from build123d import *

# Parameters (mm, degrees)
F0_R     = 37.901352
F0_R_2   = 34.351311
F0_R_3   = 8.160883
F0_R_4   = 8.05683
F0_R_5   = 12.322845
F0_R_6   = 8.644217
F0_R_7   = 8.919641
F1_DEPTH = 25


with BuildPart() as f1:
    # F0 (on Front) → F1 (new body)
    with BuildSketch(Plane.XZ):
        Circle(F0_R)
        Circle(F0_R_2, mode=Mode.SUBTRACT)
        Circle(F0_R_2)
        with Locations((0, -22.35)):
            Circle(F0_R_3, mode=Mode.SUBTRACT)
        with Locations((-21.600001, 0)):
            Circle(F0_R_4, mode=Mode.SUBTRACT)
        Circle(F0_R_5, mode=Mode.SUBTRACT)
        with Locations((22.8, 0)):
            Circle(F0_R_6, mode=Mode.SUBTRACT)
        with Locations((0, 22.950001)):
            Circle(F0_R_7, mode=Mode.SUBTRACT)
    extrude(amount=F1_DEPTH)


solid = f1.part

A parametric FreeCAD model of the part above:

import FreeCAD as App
import Part
import Sketcher
Q = App.Units.Quantity

doc = App.newDocument("Part")
body = doc.addObject("PartDesign::Body", "Body")

# Sketch on XZ plane
sketch1 = body.newObject("Sketcher::SketchObject", "Sketch")
sketch1.AttachmentSupport = (doc.getObject("XZ_Plane"), [""])
sketch1.MapMode = "FlatFace"
sketch1.addGeometry(Part.Circle(App.Vector(0, 0, 0), App.Vector(0, 0, 1), 37.901352), False)
sketch1.addGeometry(Part.Circle(App.Vector(0, -22.35, 0), App.Vector(0, 0, 1), 8.160883), False)
sketch1.addGeometry(Part.Circle(App.Vector(-21.600001, 0, 0), App.Vector(0, 0, 1), 8.05683), False)
sketch1.addGeometry(Part.Circle(App.Vector(0, 0, 0), App.Vector(0, 0, 1), 12.322845), False)
sketch1.addGeometry(Part.Circle(App.Vector(22.8, 0, 0), App.Vector(0, 0, 1), 8.644217), False)
sketch1.addGeometry(Part.Circle(App.Vector(0, 22.950001, 0), App.Vector(0, 0, 1), 8.919641), False)
sketch1.addConstraint(Sketcher.Constraint("Coincident", 0, 3, -1, 1))
sketch1.addConstraint(Sketcher.Constraint("Coincident", 3, 3, -1, 1))
sketch1.addConstraint(Sketcher.Constraint("PointOnObject", 1, 3, -2))
sketch1.addConstraint(Sketcher.Constraint("PointOnObject", 2, 3, -1))
sketch1.addConstraint(Sketcher.Constraint("PointOnObject", 4, 3, -1))
sketch1.addConstraint(Sketcher.Constraint("PointOnObject", 5, 3, -2))
sketch1.addConstraint(Sketcher.Constraint("DistanceX", 2, 3, -1, 1, Q("21.600001 mm")))
sketch1.addConstraint(Sketcher.Constraint("DistanceX", -1, 1, 4, 3, Q("22.8 mm")))
sketch1.addConstraint(Sketcher.Constraint("DistanceY", 1, 3, 5, 3, Q("45.300001 mm")))
sketch1.addConstraint(Sketcher.Constraint("Diameter", 2, Q("16.11366 mm")))
sketch1.addConstraint(Sketcher.Constraint("Diameter", 3, Q("24.64569 mm")))
sketch1.addConstraint(Sketcher.Constraint("DistanceY", 1, 3, -1, 1, Q("22.35 mm")))
sketch1.addConstraint(Sketcher.Constraint("Diameter", 0, Q("75.802704 mm")))
sketch1.addConstraint(Sketcher.Constraint("Diameter", 1, Q("16.321766 mm")))
sketch1.addConstraint(Sketcher.Constraint("Diameter", 4, Q("17.288434 mm")))
sketch1.addConstraint(Sketcher.Constraint("Diameter", 5, Q("17.839282 mm")))
pad1 = body.newObject("PartDesign::Pad", "Pad")
pad1.Profile = sketch1
pad1.Length = 25

doc.recompute()
